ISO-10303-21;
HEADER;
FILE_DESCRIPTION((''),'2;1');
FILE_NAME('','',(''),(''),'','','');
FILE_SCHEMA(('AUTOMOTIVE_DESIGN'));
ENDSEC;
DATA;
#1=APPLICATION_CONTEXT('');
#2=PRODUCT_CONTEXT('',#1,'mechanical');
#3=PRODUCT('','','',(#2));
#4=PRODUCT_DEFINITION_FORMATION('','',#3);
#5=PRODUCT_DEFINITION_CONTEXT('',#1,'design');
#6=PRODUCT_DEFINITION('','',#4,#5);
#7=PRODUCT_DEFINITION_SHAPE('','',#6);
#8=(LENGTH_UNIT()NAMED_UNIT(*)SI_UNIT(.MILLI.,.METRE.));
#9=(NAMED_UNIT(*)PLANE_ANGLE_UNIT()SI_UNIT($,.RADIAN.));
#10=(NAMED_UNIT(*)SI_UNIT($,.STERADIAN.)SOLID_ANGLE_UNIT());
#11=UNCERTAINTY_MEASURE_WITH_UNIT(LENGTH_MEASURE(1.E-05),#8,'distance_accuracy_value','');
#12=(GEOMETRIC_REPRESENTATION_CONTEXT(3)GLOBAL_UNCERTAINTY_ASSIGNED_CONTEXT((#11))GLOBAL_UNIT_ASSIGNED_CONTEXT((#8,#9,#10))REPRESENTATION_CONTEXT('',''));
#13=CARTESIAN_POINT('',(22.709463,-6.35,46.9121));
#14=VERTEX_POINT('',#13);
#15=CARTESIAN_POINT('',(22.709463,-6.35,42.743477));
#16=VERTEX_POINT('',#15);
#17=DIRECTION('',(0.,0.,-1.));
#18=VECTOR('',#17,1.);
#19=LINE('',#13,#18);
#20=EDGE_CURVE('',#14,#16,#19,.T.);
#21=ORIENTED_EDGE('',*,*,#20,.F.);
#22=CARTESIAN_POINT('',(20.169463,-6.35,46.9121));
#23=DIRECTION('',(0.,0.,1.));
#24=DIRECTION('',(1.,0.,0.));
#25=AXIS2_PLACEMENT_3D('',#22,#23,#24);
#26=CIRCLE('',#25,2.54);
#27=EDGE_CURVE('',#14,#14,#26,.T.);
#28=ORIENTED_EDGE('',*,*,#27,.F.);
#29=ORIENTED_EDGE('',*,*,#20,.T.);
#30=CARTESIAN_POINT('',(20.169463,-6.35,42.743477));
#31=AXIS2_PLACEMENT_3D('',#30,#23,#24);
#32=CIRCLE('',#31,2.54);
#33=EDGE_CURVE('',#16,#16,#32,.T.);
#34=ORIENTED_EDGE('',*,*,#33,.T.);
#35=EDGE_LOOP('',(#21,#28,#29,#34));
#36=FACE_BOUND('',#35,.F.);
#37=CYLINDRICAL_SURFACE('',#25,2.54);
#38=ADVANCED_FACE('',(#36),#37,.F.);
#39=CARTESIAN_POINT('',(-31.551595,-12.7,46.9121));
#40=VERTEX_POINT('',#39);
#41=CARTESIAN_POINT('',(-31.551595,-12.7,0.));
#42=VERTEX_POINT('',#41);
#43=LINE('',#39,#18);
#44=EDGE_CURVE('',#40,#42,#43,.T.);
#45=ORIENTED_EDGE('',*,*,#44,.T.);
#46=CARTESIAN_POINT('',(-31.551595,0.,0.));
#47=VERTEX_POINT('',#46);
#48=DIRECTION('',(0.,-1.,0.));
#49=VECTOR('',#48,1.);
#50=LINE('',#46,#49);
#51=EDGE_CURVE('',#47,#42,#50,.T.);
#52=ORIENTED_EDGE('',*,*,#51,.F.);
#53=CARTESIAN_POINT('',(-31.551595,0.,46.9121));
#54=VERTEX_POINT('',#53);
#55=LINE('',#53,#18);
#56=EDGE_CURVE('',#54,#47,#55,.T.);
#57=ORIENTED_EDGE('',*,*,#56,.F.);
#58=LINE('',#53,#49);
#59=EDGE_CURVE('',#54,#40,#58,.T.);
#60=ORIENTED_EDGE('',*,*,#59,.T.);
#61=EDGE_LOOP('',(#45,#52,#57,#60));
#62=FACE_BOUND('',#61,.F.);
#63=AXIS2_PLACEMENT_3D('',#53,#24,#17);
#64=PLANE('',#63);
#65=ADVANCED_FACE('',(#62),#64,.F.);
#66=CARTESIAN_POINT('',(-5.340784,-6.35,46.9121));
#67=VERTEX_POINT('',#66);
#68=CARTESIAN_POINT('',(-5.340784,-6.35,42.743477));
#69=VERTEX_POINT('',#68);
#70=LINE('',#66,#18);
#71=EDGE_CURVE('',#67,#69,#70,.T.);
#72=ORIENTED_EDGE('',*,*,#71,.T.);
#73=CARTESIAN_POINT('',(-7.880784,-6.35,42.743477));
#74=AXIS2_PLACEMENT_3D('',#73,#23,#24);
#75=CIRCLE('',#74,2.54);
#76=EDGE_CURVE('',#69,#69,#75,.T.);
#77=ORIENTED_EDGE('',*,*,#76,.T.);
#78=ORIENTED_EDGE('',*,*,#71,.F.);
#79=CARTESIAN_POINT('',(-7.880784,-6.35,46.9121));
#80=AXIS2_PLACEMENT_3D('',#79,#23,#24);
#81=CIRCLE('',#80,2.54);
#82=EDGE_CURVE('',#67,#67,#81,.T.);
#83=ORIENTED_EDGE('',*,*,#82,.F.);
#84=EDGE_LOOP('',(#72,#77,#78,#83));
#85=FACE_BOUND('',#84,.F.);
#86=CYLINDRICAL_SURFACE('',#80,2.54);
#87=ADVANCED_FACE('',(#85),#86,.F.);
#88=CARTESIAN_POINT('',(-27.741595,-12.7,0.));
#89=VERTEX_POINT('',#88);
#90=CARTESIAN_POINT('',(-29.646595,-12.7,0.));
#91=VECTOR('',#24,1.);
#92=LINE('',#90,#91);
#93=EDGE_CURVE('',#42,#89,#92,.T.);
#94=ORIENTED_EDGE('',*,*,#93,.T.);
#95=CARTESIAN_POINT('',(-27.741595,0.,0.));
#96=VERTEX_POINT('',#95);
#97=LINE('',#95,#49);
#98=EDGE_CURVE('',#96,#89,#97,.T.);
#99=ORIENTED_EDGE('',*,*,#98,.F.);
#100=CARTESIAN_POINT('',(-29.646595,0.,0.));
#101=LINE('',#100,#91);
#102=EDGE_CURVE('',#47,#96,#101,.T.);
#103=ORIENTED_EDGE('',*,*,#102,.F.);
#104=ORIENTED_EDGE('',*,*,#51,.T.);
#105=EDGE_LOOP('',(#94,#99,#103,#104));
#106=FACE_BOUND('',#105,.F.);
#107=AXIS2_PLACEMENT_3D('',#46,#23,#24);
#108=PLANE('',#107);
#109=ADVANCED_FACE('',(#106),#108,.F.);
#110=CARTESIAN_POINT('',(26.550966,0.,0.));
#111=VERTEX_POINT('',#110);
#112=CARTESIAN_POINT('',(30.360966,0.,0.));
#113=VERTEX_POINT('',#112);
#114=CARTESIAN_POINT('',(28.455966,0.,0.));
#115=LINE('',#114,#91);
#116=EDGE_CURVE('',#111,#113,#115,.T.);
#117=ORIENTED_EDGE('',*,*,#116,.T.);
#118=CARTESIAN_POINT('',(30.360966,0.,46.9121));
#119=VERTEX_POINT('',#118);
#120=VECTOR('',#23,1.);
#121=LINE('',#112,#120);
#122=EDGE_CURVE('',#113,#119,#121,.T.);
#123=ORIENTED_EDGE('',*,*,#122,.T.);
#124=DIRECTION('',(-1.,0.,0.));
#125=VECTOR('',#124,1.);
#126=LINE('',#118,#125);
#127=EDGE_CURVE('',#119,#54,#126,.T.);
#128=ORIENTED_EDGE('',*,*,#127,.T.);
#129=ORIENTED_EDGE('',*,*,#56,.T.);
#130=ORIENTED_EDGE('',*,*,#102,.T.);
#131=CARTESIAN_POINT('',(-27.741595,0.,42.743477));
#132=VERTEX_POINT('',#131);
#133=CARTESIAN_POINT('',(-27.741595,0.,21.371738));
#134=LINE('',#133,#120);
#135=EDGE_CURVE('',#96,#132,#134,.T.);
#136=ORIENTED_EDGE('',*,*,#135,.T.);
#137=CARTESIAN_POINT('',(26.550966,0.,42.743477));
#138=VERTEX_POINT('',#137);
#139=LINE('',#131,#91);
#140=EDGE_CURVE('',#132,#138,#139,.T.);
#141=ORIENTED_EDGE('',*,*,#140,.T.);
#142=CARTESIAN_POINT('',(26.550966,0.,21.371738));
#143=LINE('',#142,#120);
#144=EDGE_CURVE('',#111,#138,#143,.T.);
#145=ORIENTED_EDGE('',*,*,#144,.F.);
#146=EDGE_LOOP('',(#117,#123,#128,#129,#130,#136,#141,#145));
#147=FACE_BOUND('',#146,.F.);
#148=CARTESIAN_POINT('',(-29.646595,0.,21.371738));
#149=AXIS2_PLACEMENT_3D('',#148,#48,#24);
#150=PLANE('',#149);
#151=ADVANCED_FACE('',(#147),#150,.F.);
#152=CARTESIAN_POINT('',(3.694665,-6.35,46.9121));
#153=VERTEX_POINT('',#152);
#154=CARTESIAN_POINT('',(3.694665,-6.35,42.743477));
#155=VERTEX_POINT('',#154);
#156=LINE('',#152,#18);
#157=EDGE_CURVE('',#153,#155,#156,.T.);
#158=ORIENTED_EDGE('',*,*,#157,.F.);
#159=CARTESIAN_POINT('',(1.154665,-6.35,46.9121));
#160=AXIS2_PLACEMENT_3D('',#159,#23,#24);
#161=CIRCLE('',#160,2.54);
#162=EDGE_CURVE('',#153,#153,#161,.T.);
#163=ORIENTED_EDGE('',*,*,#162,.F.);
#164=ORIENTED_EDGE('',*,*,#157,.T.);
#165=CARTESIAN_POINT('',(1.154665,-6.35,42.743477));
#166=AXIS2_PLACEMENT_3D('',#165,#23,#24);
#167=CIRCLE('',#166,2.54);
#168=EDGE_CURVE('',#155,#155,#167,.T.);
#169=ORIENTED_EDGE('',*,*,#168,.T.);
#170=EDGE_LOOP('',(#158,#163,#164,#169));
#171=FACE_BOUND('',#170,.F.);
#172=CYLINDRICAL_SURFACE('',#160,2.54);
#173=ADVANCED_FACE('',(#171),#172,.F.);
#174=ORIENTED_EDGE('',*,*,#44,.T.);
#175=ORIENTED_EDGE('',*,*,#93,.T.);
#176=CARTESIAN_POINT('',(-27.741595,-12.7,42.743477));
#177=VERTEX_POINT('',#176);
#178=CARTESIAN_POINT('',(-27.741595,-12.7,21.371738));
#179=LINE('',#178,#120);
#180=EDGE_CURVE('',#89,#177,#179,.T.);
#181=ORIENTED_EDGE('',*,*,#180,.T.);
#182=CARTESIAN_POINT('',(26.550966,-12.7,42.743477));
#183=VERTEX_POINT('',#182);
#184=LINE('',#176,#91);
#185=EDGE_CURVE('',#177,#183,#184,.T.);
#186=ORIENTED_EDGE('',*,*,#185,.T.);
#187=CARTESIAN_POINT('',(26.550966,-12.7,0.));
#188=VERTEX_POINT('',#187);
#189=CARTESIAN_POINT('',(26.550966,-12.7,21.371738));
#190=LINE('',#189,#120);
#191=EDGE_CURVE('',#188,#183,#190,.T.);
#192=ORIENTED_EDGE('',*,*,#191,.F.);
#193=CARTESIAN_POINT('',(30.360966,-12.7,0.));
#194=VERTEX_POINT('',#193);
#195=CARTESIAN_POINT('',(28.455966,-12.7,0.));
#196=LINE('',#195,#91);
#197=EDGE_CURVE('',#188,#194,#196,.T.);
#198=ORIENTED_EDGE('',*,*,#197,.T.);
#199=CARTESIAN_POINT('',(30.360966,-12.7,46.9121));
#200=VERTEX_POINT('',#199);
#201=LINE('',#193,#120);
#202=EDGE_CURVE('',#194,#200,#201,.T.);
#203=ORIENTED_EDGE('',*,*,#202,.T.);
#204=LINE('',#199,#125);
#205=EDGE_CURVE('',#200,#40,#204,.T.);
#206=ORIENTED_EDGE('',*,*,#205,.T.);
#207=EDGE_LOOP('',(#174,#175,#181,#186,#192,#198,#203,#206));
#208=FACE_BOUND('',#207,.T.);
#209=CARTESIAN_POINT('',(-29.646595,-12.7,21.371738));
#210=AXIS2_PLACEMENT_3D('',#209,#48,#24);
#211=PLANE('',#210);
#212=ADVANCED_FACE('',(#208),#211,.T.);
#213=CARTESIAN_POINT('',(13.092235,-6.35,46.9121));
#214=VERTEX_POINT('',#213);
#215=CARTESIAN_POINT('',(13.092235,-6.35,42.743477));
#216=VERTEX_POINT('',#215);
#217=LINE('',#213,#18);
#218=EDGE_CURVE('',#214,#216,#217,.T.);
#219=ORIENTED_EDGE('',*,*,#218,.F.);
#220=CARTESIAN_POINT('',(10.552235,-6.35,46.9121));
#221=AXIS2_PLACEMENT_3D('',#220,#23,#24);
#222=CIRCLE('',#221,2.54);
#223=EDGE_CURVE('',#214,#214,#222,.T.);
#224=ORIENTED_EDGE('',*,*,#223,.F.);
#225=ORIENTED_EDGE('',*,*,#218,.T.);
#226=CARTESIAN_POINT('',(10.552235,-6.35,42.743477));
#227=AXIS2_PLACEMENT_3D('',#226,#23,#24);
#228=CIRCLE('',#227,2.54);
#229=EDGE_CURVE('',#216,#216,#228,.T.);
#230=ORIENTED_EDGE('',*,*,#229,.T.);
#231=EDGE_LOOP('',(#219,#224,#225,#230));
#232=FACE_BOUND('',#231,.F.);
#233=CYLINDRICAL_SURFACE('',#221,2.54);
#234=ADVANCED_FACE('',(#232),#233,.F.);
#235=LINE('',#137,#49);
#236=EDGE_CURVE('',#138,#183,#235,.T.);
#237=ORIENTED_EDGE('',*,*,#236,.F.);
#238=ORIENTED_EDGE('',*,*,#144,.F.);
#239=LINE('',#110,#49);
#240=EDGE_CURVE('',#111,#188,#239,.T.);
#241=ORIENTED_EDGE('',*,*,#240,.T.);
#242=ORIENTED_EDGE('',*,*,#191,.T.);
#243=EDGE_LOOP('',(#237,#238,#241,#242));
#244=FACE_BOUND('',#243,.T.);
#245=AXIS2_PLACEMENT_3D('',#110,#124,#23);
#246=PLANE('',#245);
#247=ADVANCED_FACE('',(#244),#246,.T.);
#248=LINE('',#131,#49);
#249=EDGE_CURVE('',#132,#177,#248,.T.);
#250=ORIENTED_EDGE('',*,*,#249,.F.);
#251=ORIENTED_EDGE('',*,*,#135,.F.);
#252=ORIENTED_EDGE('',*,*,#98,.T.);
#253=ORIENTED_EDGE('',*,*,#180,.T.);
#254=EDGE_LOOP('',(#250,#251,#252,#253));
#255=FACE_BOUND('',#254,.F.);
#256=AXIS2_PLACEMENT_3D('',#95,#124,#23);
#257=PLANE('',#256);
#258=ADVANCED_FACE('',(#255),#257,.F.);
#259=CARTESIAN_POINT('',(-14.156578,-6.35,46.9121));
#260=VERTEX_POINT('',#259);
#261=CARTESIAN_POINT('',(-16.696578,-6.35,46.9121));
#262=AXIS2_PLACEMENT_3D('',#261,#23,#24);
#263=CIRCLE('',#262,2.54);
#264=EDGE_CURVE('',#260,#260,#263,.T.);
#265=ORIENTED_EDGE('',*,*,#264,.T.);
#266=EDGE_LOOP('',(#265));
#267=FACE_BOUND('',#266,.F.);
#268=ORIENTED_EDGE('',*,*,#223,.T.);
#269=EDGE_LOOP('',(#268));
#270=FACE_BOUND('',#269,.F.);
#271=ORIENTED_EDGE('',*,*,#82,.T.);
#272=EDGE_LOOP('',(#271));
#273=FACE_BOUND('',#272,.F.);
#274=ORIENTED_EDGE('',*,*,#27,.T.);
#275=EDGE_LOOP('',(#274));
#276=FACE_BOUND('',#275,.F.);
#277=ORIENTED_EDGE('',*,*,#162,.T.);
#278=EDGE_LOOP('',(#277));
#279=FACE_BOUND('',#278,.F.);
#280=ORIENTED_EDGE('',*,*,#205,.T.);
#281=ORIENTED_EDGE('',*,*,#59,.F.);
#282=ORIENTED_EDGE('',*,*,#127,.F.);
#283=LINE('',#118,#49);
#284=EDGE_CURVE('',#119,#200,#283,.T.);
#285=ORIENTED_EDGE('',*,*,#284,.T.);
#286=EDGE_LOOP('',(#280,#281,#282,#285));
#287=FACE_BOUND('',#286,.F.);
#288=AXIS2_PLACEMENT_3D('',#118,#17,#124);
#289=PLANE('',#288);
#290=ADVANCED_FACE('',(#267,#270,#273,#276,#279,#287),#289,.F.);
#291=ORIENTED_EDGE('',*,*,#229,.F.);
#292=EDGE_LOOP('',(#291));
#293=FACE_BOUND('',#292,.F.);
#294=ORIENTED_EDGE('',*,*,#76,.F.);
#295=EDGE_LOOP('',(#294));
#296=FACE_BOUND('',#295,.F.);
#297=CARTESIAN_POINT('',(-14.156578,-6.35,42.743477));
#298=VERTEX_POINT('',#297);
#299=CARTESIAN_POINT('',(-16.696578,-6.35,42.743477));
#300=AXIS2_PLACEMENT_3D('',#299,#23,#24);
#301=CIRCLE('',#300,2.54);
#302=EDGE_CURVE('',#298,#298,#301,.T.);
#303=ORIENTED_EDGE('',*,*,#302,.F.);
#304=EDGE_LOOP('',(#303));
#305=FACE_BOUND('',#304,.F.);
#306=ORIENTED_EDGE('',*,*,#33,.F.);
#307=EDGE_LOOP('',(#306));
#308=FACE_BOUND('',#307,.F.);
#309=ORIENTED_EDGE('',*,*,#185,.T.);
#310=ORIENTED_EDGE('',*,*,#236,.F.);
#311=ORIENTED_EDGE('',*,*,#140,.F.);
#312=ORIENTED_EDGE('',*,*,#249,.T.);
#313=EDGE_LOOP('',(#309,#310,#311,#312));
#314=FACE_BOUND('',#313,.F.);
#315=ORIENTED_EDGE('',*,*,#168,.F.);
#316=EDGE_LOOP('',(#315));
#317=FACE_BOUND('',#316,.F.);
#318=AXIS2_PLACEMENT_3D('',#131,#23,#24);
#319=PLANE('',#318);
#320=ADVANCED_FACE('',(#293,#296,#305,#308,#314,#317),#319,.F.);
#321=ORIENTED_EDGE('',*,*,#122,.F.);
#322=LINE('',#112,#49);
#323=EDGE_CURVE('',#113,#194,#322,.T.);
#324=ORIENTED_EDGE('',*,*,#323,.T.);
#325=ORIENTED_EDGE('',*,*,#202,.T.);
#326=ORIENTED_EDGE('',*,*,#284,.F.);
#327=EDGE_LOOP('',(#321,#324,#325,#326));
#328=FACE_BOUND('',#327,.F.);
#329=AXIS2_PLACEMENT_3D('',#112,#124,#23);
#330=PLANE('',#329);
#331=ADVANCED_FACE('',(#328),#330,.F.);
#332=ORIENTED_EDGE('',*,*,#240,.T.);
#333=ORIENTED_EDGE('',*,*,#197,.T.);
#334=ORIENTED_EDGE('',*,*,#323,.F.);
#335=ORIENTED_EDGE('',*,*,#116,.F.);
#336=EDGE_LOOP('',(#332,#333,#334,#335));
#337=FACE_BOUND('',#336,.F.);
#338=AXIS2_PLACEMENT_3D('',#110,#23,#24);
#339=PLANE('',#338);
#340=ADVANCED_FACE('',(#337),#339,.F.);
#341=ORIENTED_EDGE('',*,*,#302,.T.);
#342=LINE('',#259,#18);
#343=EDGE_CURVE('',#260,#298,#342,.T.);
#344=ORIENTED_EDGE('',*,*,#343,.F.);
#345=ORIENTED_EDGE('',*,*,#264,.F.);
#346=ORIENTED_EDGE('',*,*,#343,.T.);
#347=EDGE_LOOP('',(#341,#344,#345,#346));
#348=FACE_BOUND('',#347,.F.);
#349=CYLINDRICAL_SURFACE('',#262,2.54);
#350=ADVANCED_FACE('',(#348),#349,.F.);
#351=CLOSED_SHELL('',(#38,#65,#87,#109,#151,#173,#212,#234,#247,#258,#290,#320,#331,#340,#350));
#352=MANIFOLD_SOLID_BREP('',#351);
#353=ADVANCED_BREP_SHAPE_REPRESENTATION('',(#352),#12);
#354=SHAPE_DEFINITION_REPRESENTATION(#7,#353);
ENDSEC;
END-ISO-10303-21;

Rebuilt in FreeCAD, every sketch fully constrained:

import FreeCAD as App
import Part
import Sketcher

V = App.Vector
Q = App.Units.Quantity

doc = App.newDocument("Part")
body = doc.addObject("PartDesign::Body", "Body")

# Sketch on XZ plane
sketch1 = doc.addObject("Sketcher::SketchObject", "Sketch")
body.addObject(sketch1)
sketch1.AttachmentSupport = (doc.XZ_Plane, [""])
sketch1.MapMode = "FlatFace"
sketch1.addGeometry([
    Part.LineSegment(V(-31.6, 0, 0), V(-27.7, 0, 0)),  # 0
    Part.LineSegment(V(-27.7, 0, 0), V(-27.7, 42.7, 0)),  # 1
    Part.LineSegment(V(-27.7, 42.7, 0), V(26.6, 42.7, 0)),  # 2
    Part.LineSegment(V(26.6, 42.7, 0), V(26.6, 0, 0)),  # 3
    Part.LineSegment(V(26.6, 0, 0), V(30.4, 0, 0)),  # 4
    Part.LineSegment(V(30.4, 0, 0), V(30.4, 46.9, 0)),  # 5
    Part.LineSegment(V(30.4, 46.9, 0), V(-31.6, 46.9, 0)),  # 6
    Part.LineSegment(V(-31.6, 46.9, 0), V(-31.6, 0, 0)),  # 7
], False)
sketch1.addConstraint([
    Sketcher.Constraint("Coincident", 0, 2, 1, 1),
    Sketcher.Constraint("Coincident", 1, 2, 2, 1),
    Sketcher.Constraint("Coincident", 2, 2, 3, 1),
    Sketcher.Constraint("Coincident", 3, 2, 4, 1),
    Sketcher.Constraint("Coincident", 4, 2, 5, 1),
    Sketcher.Constraint("Coincident", 5, 2, 6, 1),
    Sketcher.Constraint("Coincident", 6, 2, 7, 1),
    Sketcher.Constraint("Coincident", 7, 2, 0, 1),
    Sketcher.Constraint("Horizontal", 0),
    Sketcher.Constraint("Vertical", 1),
    Sketcher.Constraint("Horizontal", 2),
    Sketcher.Constraint("Vertical", 3),
    Sketcher.Constraint("Horizontal", 4),
    Sketcher.Constraint("Vertical", 5),
    Sketcher.Constraint("Horizontal", 6),
    Sketcher.Constraint("Vertical", 7),
    Sketcher.Constraint("PointOnObject", 0, 2, -1),
    Sketcher.Constraint("PointOnObject", 3, 2, -1),
    Sketcher.Constraint("Equal", 0, 4),
    Sketcher.Constraint("DistanceX", 0, 1, 0, 2, Q("0.15 in")),
    Sketcher.Constraint("DistanceY", 5, 1, 5, 2, Q("46.9121 mm")),
    Sketcher.Constraint("DistanceX", 2, 1, 2, 2, Q("54.292561 mm")),
    Sketcher.Constraint("DistanceY", 1, 1, 1, 2, Q("42.743477 mm")),
    Sketcher.Constraint("DistanceX", 0, 2, -1, 1, Q("27.741595 mm")),
])
pad1 = doc.addObject("PartDesign::Pad", "Pad")
body.addObject(pad1)
pad1.Profile = sketch1
pad1.Length = Q("0.5 in")

# Sketch on XY plane
sketch2 = doc.addObject("Sketcher::SketchObject", "Sketch001")
body.addObject(sketch2)
sketch2.AttachmentSupport = (doc.XY_Plane, [""])
sketch2.MapMode = "FlatFace"
sketch2.AttachmentOffset = App.Placement(V(0, 0, 46.9121), App.Rotation())
sketch2.addGeometry([
    Part.Circle(V(-16.7, -6.3, 0), V(0, 0, 1), 2.5),  # 0
    Part.Circle(V(-7.9, -6.3, 0), V(0, 0, 1), 2.5),  # 1
    Part.Circle(V(1.2, -6.3, 0), V(0, 0, 1), 2.5),  # 2
    Part.Circle(V(10.6, -6.3, 0), V(0, 0, 1), 2.5),  # 3
    Part.Circle(V(20.2, -6.3, 0), V(0, 0, 1), 2.5),  # 4
], False)
sketch2.addConstraint([
    Sketcher.Constraint("Equal", 0, 1),
    Sketcher.Constraint("Equal", 1, 2),
    Sketcher.Constraint("Equal", 2, 3),
    Sketcher.Constraint("Equal", 3, 4),
    Sketcher.Constraint("Horizontal", 0, 3, 1, 3),
    Sketcher.Constraint("Horizontal", 1, 3, 2, 3),
    Sketcher.Constraint("Horizontal", 2, 3, 3, 3),
    Sketcher.Constraint("Horizontal", 3, 3, 4, 3),
    Sketcher.Constraint("Diameter", 0, Q("0.2 in")),
    Sketcher.Constraint("DistanceY", 0, 3, -1, 1, Q("0.25 in")),
    Sketcher.Constraint("DistanceX", 2, 3, 4, 3, Q("19.014798 mm")),
    Sketcher.Constraint("DistanceX", 1, 3, 2, 3, Q("9.035449 mm")),
    Sketcher.Constraint("DistanceX", 2, 3, 3, 3, Q("9.39757 mm")),
    Sketcher.Constraint("DistanceX", 0, 3, 4, 3, Q("36.866041 mm")),
    Sketcher.Constraint("DistanceX", 0, 3, -1, 1, Q("16.696578 mm")),
])
pocket1 = doc.addObject("PartDesign::Pocket", "Pocket")
body.addObject(pocket1)
pocket1.Profile = sketch2
pocket1.Length = Q("1 in")

doc.recompute()
